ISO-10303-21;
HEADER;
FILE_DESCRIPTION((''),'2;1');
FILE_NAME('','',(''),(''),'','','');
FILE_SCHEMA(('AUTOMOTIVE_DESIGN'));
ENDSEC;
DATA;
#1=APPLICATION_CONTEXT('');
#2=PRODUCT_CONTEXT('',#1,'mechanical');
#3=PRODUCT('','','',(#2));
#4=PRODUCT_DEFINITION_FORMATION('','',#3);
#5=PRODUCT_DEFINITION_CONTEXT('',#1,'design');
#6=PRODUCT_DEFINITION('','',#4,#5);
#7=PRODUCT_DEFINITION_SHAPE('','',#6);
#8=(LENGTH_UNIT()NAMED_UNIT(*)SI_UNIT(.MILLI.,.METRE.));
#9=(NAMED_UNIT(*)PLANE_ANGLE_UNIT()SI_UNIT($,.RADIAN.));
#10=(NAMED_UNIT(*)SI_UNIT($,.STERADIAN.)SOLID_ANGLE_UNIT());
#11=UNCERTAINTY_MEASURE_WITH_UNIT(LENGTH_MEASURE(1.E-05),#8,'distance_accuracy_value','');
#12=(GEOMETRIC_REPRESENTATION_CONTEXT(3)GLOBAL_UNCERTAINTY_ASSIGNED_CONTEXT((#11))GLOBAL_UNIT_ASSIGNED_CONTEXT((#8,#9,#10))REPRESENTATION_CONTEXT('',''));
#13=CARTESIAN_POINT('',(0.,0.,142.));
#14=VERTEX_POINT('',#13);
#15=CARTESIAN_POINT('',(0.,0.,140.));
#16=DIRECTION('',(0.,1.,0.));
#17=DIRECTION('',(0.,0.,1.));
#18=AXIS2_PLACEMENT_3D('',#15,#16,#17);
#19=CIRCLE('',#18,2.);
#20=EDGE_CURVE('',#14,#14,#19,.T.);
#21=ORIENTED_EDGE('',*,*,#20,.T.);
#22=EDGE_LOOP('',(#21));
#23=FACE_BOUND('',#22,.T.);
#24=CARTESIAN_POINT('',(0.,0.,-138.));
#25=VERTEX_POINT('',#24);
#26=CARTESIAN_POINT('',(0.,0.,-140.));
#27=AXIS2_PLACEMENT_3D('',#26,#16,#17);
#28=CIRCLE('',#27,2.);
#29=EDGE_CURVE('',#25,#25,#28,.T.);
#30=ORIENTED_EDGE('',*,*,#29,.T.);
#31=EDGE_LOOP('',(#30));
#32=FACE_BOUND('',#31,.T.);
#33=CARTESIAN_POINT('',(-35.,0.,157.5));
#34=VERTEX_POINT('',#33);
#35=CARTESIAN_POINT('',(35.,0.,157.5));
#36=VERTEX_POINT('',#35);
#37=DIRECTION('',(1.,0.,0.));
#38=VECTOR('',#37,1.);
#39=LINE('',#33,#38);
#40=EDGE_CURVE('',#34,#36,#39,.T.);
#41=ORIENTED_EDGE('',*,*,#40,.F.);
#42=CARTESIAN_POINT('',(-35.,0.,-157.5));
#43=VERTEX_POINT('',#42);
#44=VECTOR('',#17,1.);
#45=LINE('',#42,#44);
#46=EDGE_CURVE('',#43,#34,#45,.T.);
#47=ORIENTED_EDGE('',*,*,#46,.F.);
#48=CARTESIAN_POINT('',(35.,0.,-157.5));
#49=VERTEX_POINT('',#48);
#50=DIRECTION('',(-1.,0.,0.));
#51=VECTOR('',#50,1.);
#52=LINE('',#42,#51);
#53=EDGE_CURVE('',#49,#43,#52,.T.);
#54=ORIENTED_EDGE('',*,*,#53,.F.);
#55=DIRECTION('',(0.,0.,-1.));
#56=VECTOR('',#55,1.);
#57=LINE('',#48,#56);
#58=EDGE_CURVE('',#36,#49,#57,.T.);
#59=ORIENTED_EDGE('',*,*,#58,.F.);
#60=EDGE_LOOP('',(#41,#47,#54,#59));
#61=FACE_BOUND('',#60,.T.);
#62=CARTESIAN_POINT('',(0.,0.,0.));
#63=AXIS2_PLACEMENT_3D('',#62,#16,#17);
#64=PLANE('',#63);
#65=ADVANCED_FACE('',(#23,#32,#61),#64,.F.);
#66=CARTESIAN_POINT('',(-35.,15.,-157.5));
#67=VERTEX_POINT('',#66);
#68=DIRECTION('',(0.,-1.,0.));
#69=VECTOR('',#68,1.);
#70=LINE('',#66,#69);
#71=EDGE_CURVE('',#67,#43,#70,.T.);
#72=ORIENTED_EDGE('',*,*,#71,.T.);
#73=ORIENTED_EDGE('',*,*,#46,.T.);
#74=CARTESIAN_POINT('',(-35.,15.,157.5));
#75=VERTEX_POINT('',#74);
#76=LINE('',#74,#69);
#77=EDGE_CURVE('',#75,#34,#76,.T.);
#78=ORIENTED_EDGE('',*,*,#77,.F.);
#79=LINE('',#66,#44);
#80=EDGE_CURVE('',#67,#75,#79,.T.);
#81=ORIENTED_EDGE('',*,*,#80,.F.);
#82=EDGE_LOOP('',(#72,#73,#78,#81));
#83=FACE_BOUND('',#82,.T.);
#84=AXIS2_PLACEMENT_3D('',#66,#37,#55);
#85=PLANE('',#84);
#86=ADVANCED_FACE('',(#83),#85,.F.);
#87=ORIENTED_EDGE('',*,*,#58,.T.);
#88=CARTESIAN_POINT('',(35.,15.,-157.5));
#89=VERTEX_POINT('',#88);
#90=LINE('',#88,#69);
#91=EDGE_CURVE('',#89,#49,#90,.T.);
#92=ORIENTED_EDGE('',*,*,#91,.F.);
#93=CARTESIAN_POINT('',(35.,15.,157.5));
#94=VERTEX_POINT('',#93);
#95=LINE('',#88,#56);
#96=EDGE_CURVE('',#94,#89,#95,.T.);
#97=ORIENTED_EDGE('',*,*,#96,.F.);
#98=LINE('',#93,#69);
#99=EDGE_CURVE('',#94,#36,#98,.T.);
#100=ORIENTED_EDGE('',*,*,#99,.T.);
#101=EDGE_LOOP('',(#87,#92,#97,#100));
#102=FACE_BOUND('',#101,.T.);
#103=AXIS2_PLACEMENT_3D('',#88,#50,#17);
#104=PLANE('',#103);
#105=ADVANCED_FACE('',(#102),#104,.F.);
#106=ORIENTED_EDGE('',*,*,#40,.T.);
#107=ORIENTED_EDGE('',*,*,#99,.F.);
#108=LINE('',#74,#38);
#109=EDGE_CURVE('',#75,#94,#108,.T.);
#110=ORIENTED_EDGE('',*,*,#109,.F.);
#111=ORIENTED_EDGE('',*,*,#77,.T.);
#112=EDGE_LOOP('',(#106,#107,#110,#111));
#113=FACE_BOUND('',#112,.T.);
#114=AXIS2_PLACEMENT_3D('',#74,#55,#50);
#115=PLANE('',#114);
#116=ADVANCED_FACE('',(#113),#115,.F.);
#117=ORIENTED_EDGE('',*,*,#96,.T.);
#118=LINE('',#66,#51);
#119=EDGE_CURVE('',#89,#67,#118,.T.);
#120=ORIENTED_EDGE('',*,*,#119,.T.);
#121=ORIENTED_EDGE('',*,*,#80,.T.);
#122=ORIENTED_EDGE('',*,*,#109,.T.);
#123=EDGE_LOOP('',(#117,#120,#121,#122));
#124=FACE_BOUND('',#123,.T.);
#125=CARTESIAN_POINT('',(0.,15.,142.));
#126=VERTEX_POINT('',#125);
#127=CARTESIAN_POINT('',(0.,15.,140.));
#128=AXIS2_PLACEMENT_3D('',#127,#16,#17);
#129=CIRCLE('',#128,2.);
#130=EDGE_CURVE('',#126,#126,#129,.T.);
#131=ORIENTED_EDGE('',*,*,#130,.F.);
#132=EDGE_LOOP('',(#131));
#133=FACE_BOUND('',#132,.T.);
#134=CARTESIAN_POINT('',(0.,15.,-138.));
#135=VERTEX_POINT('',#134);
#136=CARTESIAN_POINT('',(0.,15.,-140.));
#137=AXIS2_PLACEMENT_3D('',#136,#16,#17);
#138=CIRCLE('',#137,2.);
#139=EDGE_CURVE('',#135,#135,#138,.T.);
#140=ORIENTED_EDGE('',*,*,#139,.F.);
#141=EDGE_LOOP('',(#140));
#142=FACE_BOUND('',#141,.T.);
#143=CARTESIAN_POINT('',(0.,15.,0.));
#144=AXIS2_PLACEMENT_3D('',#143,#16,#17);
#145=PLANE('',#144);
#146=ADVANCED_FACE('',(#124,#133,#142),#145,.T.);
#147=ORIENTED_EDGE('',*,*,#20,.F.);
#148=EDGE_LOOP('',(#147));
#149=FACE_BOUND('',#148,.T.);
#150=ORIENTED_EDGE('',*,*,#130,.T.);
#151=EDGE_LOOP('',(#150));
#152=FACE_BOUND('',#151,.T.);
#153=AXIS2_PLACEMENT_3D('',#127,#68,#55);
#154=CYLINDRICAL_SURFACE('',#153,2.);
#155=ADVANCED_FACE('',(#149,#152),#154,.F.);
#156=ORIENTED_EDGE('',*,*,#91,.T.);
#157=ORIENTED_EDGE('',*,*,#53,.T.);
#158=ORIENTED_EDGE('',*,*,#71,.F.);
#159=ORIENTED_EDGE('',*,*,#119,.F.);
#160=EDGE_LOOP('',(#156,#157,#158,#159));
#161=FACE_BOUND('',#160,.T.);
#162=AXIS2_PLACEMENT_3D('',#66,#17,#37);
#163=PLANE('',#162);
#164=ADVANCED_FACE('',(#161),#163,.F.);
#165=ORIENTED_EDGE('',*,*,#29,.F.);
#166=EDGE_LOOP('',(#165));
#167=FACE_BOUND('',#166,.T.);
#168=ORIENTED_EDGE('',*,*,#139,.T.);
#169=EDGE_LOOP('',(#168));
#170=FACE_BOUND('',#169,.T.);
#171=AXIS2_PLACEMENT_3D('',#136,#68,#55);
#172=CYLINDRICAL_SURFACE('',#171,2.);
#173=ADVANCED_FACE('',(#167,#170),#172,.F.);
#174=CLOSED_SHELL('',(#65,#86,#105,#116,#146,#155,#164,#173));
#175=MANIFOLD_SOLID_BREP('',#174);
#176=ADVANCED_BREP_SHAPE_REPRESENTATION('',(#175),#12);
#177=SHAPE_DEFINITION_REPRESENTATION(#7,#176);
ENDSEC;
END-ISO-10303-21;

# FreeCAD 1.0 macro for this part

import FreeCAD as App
import Part
import Sketcher

V = App.Vector


def add_polygon(sketch, points):
    """Adds a closed chain of lines whose ends are joined by coincident constraints."""
    first, n = sketch.GeometryCount, len(points)
    for a, b in zip(points, points[1:] + points[:1]):
        sketch.addGeometry(Part.LineSegment(App.Vector(*a, 0), App.Vector(*b, 0)), False)
    for i in range(n):
        sketch.addConstraint(Sketcher.Constraint("Coincident", first + i, 2, first + (i + 1) % n, 1))

doc = App.newDocument("Part")
body = doc.addObject("PartDesign::Body", "Body")

# Sketch on XZ plane
sketch1 = body.newObject("Sketcher::SketchObject", "Sketch")
sketch1.AttachmentSupport = (doc.getObject("XZ_Plane"), [""])
sketch1.MapMode = "FlatFace"
add_polygon(sketch1, [(-35, -157.5), (-35, 157.5), (35, 157.5), (35, -157.5)])  # lines 0-3
sketch1.addGeometry(Part.Circle(V(0, 140, 0), V(0, 0, 1), 2), False)  # 4
sketch1.addGeometry(Part.Circle(V(0, -140, 0), V(0, 0, 1), 2), False)  # 5
sketch1.addConstraint(Sketcher.Constraint("Vertical", 0))
sketch1.addConstraint(Sketcher.Constraint("Horizontal", 1))
sketch1.addConstraint(Sketcher.Constraint("Vertical", 2))
sketch1.addConstraint(Sketcher.Constraint("Horizontal", 3))
sketch1.addConstraint(Sketcher.Constraint("Equal", 4, 5))
sketch1.addConstraint(Sketcher.Constraint("Symmetric", 4, 3, 5, 3, -1, 1))
sketch1.addConstraint(Sketcher.Constraint("Symmetric", 0, 2, 2, 2, -1, 1))
sketch1.addConstraint(Sketcher.Constraint("PointOnObject", 4, 3, -2))
sketch1.addConstraint(Sketcher.Constraint("Diameter", 4, 4.0))
sketch1.addConstraint(Sketcher.Constraint("DistanceX", 1, 1, 1, 2, 70.0))
sketch1.addConstraint(Sketcher.Constraint("DistanceY", 0, 1, 0, 2, 315.0))
sketch1.addConstraint(Sketcher.Constraint("DistanceY", -1, 1, 4, 3, 140.0))
pad1 = body.newObject("PartDesign::Pad", "Pad")
pad1.Profile = sketch1
pad1.Length = 15
pad1.Reversed = True

doc.recompute()
